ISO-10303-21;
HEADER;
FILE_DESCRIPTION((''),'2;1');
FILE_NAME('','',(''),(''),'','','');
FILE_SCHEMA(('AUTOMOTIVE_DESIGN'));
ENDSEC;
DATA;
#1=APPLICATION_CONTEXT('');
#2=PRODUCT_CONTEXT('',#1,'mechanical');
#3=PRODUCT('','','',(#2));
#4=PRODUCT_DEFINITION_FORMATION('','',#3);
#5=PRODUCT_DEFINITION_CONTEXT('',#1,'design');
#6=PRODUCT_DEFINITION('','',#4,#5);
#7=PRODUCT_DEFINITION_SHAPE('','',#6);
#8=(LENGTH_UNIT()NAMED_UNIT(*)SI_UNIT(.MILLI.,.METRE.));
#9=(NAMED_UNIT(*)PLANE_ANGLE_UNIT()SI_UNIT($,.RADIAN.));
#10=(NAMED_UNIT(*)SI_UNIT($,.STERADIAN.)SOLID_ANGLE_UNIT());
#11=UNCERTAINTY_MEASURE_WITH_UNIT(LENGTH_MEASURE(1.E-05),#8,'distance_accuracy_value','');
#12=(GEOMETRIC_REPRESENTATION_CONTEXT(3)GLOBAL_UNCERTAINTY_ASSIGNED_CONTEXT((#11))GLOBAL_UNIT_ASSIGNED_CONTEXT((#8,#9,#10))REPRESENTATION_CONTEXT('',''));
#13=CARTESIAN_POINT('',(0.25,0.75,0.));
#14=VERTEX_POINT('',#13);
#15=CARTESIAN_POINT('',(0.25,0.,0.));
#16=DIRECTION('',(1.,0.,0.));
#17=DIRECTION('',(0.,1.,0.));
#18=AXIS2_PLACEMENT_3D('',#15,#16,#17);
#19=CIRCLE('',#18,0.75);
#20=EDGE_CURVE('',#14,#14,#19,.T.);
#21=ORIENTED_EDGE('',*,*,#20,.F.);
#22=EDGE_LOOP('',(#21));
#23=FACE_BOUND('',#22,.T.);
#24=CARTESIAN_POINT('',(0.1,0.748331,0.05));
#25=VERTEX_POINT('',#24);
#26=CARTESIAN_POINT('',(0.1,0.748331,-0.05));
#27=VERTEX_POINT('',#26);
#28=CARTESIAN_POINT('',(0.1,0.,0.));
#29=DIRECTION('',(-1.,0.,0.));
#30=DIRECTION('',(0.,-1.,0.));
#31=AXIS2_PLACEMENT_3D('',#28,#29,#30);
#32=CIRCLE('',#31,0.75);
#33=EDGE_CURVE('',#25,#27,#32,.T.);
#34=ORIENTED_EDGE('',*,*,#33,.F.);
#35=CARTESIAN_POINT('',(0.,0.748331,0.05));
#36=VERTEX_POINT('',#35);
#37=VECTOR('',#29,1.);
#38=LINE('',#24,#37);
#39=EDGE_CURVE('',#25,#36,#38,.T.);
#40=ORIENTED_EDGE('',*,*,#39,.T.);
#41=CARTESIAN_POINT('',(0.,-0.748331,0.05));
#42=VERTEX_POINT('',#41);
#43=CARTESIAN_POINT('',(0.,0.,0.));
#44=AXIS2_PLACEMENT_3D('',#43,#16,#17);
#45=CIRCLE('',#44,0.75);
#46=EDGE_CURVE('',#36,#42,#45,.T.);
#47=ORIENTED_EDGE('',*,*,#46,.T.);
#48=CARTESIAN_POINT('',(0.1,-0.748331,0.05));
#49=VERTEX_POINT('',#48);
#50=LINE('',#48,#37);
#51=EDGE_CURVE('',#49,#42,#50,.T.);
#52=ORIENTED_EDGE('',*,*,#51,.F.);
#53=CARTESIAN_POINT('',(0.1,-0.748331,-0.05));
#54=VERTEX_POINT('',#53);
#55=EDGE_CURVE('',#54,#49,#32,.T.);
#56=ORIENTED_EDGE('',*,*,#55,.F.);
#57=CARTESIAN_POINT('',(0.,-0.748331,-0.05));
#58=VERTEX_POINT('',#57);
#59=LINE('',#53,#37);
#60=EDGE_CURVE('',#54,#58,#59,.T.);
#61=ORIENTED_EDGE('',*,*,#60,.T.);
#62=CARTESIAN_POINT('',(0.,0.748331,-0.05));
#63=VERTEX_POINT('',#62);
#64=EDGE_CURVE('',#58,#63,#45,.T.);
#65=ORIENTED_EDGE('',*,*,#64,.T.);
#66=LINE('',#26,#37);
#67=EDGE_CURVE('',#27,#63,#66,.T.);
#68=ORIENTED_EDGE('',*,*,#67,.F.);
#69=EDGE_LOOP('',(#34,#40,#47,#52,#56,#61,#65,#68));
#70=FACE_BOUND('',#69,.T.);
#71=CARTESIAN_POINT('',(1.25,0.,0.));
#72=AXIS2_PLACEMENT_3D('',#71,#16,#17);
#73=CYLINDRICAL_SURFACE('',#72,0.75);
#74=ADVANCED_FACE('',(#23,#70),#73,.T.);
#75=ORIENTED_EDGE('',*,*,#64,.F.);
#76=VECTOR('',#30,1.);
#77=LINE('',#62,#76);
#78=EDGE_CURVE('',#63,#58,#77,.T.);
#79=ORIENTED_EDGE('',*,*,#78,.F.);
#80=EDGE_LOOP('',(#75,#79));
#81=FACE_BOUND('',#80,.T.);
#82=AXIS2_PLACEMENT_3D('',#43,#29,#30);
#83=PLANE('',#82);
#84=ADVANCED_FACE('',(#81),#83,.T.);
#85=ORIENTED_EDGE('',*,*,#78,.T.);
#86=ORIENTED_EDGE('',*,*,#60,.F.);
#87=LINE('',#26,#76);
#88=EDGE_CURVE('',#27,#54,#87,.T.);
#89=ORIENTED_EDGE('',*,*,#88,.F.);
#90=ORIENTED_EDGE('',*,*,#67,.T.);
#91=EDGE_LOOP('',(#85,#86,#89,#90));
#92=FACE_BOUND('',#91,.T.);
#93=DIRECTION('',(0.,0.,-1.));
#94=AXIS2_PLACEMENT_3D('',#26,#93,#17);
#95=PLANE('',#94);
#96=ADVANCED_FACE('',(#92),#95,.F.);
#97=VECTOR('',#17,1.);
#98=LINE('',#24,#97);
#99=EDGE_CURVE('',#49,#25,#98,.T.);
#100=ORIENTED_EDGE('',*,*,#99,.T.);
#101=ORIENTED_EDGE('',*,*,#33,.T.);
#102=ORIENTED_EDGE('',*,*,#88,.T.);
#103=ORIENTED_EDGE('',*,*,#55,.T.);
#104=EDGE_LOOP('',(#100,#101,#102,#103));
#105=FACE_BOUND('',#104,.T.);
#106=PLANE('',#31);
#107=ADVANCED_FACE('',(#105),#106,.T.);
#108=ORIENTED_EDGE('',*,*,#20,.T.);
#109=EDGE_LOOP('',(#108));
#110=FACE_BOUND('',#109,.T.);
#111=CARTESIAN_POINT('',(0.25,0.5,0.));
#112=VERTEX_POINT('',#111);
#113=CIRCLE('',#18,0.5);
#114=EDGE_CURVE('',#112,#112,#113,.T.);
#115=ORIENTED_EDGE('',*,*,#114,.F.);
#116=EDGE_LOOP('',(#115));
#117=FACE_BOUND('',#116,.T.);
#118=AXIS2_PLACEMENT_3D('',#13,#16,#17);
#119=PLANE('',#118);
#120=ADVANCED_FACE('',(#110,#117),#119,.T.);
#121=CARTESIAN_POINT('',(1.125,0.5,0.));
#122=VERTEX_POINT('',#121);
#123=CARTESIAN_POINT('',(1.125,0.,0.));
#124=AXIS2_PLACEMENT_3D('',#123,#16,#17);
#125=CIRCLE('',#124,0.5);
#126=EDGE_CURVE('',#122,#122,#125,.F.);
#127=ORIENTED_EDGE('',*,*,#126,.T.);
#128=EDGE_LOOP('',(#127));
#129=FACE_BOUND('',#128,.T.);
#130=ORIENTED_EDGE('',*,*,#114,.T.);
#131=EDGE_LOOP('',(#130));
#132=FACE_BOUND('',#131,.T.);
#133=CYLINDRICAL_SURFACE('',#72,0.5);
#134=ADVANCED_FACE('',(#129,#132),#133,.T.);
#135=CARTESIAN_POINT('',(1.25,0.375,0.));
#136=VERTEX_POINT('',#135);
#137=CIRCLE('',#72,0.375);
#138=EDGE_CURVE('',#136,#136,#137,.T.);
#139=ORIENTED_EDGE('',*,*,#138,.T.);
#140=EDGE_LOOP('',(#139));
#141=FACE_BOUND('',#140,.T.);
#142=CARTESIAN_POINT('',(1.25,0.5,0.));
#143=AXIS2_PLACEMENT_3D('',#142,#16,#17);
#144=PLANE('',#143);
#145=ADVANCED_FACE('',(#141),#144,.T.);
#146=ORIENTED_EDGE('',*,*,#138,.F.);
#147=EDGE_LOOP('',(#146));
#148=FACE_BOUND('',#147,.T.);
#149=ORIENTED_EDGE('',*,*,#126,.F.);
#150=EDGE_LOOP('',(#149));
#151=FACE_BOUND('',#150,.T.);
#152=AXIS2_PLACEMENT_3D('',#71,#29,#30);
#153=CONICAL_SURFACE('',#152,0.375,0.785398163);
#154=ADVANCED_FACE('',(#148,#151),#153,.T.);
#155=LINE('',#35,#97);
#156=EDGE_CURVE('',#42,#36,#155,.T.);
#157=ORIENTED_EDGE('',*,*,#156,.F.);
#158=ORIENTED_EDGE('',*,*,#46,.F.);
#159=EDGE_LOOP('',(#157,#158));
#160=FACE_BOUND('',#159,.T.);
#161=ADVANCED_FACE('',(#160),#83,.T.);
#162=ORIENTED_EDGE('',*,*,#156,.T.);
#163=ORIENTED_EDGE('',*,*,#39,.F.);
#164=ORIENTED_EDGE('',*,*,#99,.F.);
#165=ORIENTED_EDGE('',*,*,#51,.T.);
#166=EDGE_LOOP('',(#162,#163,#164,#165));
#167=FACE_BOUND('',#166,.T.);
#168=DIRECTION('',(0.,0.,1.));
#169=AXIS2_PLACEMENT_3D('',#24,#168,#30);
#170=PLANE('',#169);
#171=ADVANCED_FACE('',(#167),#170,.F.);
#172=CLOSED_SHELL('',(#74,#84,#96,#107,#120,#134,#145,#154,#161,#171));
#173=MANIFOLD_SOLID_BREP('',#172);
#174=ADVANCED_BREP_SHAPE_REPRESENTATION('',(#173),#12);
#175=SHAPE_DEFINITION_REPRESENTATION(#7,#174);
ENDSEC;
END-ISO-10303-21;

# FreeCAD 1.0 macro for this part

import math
import FreeCAD as App
import Part
import Sketcher

V = App.Vector
Q = App.Units.Quantity


def edges_at(feature, points):
    """Names of the edges that pass closest to the given points."""
    edges = feature.Shape.Edges
    near = lambda p: min(range(len(edges)), key=lambda i: edges[i].distToShape(Part.Vertex(*p))[0])
    return sorted({f"Edge{near(p) + 1}" for p in points})


def add_polygon(sketch, points):
    """Adds a closed chain of lines whose ends are joined by coincident constraints."""
    first, n = sketch.GeometryCount, len(points)
    for a, b in zip(points, points[1:] + points[:1]):
        sketch.addGeometry(Part.LineSegment(App.Vector(*a, 0), App.Vector(*b, 0)), False)
    for i in range(n):
        sketch.addConstraint(Sketcher.Constraint("Coincident", first + i, 2, first + (i + 1) % n, 1))

doc = App.newDocument("Part")
params = doc.addObject("Spreadsheet::Sheet", "Params")
for row, (alias, value) in enumerate([
    ("sketch1_width", "1 mm"),
    ("sketch1_height", "0.5 mm"),
    ("sketch1_width2", "1.25 mm"),
    ("revolution_angle", "360 deg"),
    ("chamfer_size", "0.125 mm"),
    ("sketch2_radius", "0.75 mm"),
    ("pocket1_length", "0.1 mm"),
], start=1):
    params.set(f"A{row}", alias)
    params.set(f"B{row}", "=" + value)
    params.setAlias(f"B{row}", alias)

body = doc.addObject("PartDesign::Body", "Body")

# Sketch on XY plane
sketch1 = body.newObject("Sketcher::SketchObject", "Sketch")
sketch1.AttachmentSupport = (doc.getObject("XY_Plane"), [""])
sketch1.MapMode = "FlatFace"
add_polygon(sketch1, [(0, 0.75), (0, 0), (1.25, 0), (1.25, 0.5), (0.25, 0.5), (0.25, 0.75)])  # lines 0-5
sketch1.addConstraint(Sketcher.Constraint("Vertical", 0))
sketch1.addConstraint(Sketcher.Constraint("Horizontal", 1))
sketch1.addConstraint(Sketcher.Constraint("Vertical", 2))
sketch1.addConstraint(Sketcher.Constraint("Horizontal", 3))
sketch1.addConstraint(Sketcher.Constraint("Vertical", 4))
sketch1.addConstraint(Sketcher.Constraint("Horizontal", 5))
sketch1.addConstraint(Sketcher.Constraint("Coincident", 0, 2, -1, 1))
sketch1.addConstraint(Sketcher.Constraint("Equal", 5, 4))
sketch1.addConstraint(Sketcher.Constraint("DistanceX", 3, 2, 3, 1, Q("1 mm")))
sketch1.addConstraint(Sketcher.Constraint("DistanceY", 2, 1, 2, 2, Q("0.5 mm")))
sketch1.addConstraint(Sketcher.Constraint("DistanceX", 1, 1, 1, 2, Q("1.25 mm")))
sketch1.setExpression("Constraints[14]", "Params.sketch1_width")
sketch1.setExpression("Constraints[15]", "Params.sketch1_height")
sketch1.setExpression("Constraints[16]", "Params.sketch1_width2")
revolution = body.newObject("PartDesign::Revolution", "Revolution")
revolution.Profile = sketch1
revolution.ReferenceAxis = (sketch1, ["H_Axis"])
revolution.setExpression("Angle", "Params.revolution_angle")
doc.recompute()

chamfer = body.newObject("PartDesign::Chamfer", "Chamfer")
chamfer.Base = (revolution, edges_at(revolution, [(1.25, -0.5, 0)]))
chamfer.setExpression("Size", "Params.chamfer_size")

# Sketch on YZ plane
sketch2 = body.newObject("Sketcher::SketchObject", "Sketch001")
sketch2.AttachmentSupport = (doc.getObject("YZ_Plane"), [""])
sketch2.MapMode = "FlatFace"
sketch2.addGeometry(Part.LineSegment(V(0.748331, -0.05, 0), V(-0.748331, -0.05, 0)), False)
sketch2.addGeometry(Part.ArcOfCircle(Part.Circle(V(0, 0, 0), V(0, 0, 1), 0.75), math.radians(176.177445), math.radians(183.822555)), False)
sketch2.addGeometry(Part.LineSegment(V(-0.748331, 0.05, 0), V(0.748331, 0.05, 0)), False)
sketch2.addGeometry(Part.ArcOfCircle(Part.Circle(V(0, 0, 0), V(0, 0, 1), 0.75), math.radians(-3.822555), math.radians(3.822555)), False)
sketch2.addConstraint(Sketcher.Constraint("Coincident", 0, 2, 1, 2))
sketch2.addConstraint(Sketcher.Constraint("Coincident", 1, 1, 2, 1))
sketch2.addConstraint(Sketcher.Constraint("Coincident", 2, 2, 3, 2))
sketch2.addConstraint(Sketcher.Constraint("Coincident", 3, 1, 0, 1))
sketch2.addConstraint(Sketcher.Constraint("Horizontal", 0))
sketch2.addConstraint(Sketcher.Constraint("Horizontal", 2))
sketch2.addConstraint(Sketcher.Constraint("Coincident", 1, 3, -1, 1))
sketch2.addConstraint(Sketcher.Constraint("Coincident", 3, 3, -1, 1))
sketch2.addConstraint(Sketcher.Constraint("Equal", 1, 3))
sketch2.addConstraint(Sketcher.Constraint("Vertical", 0, 2, 1, 1))
sketch2.addConstraint(Sketcher.Constraint("Radius", 1, Q("0.75 mm")))
sketch2.addConstraint(Sketcher.Constraint("DistanceY", 0, 2, 1, 1, Q("0.1 mm")))
sketch2.setExpression("Constraints[10]", "Params.sketch2_radius")
pocket1 = body.newObject("PartDesign::Pocket", "Pocket")
pocket1.Profile = sketch2
pocket1.setExpression("Length", "Params.pocket1_length")
pocket1.Reversed = True

doc.recompute()
